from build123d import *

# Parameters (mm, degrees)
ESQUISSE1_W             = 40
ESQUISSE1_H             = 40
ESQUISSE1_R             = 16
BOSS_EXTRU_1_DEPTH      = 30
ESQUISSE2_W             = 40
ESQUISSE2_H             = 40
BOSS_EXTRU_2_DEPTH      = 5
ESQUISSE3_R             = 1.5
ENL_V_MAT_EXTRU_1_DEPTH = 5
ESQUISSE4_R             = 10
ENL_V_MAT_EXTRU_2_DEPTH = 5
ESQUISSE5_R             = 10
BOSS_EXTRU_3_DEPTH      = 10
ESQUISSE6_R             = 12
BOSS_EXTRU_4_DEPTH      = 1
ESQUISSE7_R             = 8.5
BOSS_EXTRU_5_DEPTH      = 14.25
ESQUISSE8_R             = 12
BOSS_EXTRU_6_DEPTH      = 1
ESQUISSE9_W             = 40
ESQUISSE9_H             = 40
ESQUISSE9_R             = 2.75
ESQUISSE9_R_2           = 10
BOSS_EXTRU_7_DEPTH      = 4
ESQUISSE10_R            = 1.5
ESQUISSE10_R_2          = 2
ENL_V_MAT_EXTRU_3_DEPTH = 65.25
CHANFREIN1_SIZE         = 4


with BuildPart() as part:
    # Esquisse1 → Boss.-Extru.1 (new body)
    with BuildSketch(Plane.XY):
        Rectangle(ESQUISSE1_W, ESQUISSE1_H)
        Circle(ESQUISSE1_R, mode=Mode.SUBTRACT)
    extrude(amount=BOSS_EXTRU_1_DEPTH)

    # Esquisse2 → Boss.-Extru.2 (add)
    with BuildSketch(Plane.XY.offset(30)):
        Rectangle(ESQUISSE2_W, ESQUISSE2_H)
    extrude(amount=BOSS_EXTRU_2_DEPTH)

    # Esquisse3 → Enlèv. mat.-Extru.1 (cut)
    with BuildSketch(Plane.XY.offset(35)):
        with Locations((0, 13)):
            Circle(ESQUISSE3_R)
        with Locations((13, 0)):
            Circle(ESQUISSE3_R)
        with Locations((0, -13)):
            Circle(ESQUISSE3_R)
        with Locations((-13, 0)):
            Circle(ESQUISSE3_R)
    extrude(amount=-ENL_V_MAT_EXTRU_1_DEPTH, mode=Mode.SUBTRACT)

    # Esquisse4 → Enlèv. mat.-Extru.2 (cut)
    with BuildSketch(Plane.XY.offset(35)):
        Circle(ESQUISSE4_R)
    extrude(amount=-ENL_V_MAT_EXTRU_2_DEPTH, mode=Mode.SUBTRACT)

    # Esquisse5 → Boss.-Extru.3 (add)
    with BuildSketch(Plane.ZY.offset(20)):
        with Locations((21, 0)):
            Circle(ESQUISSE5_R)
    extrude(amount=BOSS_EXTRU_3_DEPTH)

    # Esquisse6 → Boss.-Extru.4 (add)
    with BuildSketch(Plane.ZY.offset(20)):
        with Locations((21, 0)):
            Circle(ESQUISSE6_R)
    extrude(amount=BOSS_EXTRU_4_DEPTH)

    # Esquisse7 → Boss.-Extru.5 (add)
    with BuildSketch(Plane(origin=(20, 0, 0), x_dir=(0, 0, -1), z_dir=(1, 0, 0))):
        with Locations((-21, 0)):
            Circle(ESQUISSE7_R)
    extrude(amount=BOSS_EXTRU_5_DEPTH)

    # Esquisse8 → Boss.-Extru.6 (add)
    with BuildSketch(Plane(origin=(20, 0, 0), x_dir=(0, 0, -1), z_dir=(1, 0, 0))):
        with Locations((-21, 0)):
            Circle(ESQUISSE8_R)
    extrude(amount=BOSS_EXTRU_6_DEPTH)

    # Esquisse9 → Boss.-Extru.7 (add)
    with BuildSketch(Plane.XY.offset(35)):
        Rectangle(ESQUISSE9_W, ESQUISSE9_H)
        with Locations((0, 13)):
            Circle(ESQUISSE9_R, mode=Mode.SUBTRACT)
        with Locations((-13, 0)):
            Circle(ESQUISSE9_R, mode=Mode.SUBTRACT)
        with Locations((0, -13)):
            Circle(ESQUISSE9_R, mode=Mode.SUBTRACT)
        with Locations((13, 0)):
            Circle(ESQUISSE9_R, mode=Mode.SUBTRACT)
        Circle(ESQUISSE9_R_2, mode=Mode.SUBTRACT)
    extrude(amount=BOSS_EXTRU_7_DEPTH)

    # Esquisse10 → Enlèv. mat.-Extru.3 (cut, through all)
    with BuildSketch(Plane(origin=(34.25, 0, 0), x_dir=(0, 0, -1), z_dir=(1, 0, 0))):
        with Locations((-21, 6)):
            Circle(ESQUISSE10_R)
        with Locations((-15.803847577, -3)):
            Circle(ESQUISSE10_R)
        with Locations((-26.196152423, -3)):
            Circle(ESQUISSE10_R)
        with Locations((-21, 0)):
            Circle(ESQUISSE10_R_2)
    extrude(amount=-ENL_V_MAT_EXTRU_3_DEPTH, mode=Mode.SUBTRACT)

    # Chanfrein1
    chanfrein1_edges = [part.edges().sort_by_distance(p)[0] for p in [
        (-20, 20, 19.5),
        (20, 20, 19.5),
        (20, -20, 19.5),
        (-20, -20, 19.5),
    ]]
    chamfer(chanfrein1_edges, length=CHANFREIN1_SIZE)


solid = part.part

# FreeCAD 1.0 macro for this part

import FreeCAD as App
import Part
import Sketcher


def edges_at(feature, points):
    """Names of the edges that pass closest to the given points."""
    edges = feature.Shape.Edges
    near = lambda p: min(range(len(edges)), key=lambda i: edges[i].distToShape(Part.Vertex(*p))[0])
    return sorted({f"Edge{near(p) + 1}" for p in points})


def add_polygon(sketch, points):
    """Adds a closed chain of lines whose ends are joined by coincident constraints."""
    first, n = sketch.GeometryCount, len(points)
    for a, b in zip(points, points[1:] + points[:1]):
        sketch.addGeometry(Part.LineSegment(App.Vector(*a, 0), App.Vector(*b, 0)), False)
    for i in range(n):
        sketch.addConstraint(Sketcher.Constraint("Coincident", first + i, 2, first + (i + 1) % n, 1))

doc = App.newDocument("Part")
body = doc.addObject("PartDesign::Body", "Body")

# Sketch on XY plane
sketch1 = body.newObject("Sketcher::SketchObject", "Sketch")
sketch1.AttachmentSupport = (doc.getObject("XY_Plane"), [""])
sketch1.MapMode = "FlatFace"
add_polygon(sketch1, [(-20, 20), (-20, -20), (20, -20), (20, 20)])  # lines 0-3
sketch1.addGeometry(Part.Circle(App.Vector(0, 0, 0), App.Vector(0, 0, 1), 16), False)  # 4
sketch1.addConstraint([
    Sketcher.Constraint("Vertical", 0),
    Sketcher.Constraint("Horizontal", 1),
    Sketcher.Constraint("Vertical", 2),
    Sketcher.Constraint("Horizontal", 3),
    Sketcher.Constraint("Coincident", 4, 3, -1, 1),
    Sketcher.Constraint("Symmetric", 0, 2, 2, 2, -1, 1),
    Sketcher.Constraint("Equal", 3, 0),
    Sketcher.Constraint("Diameter", 4, 32.0),
    Sketcher.Constraint("DistanceX", 1, 1, 1, 2, 40.0),
])
pad1 = body.newObject("PartDesign::Pad", "Pad")
pad1.Profile = sketch1
pad1.Length = 30

# Sketch on XY plane
sketch2 = body.newObject("Sketcher::SketchObject", "Sketch001")
sketch2.AttachmentSupport = (doc.getObject("XY_Plane"), [""])
sketch2.MapMode = "FlatFace"
sketch2.AttachmentOffset = App.Placement(App.Vector(0, 0, 30), App.Rotation())
add_polygon(sketch2, [(-20, 20), (-20, -20), (20, -20), (20, 20)])  # lines 0-3
sketch2.addConstraint([
    Sketcher.Constraint("Vertical", 0),
    Sketcher.Constraint("Horizontal", 1),
    Sketcher.Constraint("Vertical", 2),
    Sketcher.Constraint("Horizontal", 3),
    Sketcher.Constraint("Symmetric", 0, 2, 2, 2, -1, 1),
    Sketcher.Constraint("Equal", 3, 0),
    Sketcher.Constraint("DistanceX", 1, 1, 1, 2, 40.0),
])
pad2 = body.newObject("PartDesign::Pad", "Pad001")
pad2.Profile = sketch2
pad2.Length = 5

# Sketch on XY plane
sketch3 = body.newObject("Sketcher::SketchObject", "Sketch002")
sketch3.AttachmentSupport = (doc.getObject("XY_Plane"), [""])
sketch3.MapMode = "FlatFace"
sketch3.AttachmentOffset = App.Placement(App.Vector(0, 0, 35), App.Rotation())
sketch3.addGeometry([
    Part.Circle(App.Vector(0, 13, 0), App.Vector(0, 0, 1), 1.5),
    Part.Circle(App.Vector(13, 0, 0), App.Vector(0, 0, 1), 1.5),
    Part.Circle(App.Vector(0, -13, 0), App.Vector(0, 0, 1), 1.5),
    Part.Circle(App.Vector(-13, 0, 0), App.Vector(0, 0, 1), 1.5),
], False)
sketch3.addConstraint([
    Sketcher.Constraint("Equal", 0, 1),
    Sketcher.Constraint("Equal", 1, 2),
    Sketcher.Constraint("Equal", 2, 3),
    Sketcher.Constraint("Symmetric", 0, 3, 2, 3, -1, 1),
    Sketcher.Constraint("Symmetric", 1, 3, 3, 3, -1, 1),
    Sketcher.Constraint("PointOnObject", 0, 3, -2),
    Sketcher.Constraint("PointOnObject", 1, 3, -1),
    Sketcher.Constraint("Diameter", 0, 3.0),
    Sketcher.Constraint("DistanceY", -1, 1, 0, 3, 13.0),
    Sketcher.Constraint("DistanceX", -1, 1, 1, 3, 13.0),
])
pocket1 = body.newObject("PartDesign::Pocket", "Pocket")
pocket1.Profile = sketch3
pocket1.Length = 5

# Sketch on XY plane
sketch4 = body.newObject("Sketcher::SketchObject", "Sketch003")
sketch4.AttachmentSupport = (doc.getObject("XY_Plane"), [""])
sketch4.MapMode = "FlatFace"
sketch4.AttachmentOffset = App.Placement(App.Vector(0, 0, 35), App.Rotation())
sketch4.addGeometry(Part.Circle(App.Vector(0, 0, 0), App.Vector(0, 0, 1), 10), False)
sketch4.addConstraint([
    Sketcher.Constraint("Coincident", 0, 3, -1, 1),
    Sketcher.Constraint("Diameter", 0, 20.0),
])
pocket2 = body.newObject("PartDesign::Pocket", "Pocket001")
pocket2.Profile = sketch4
pocket2.Length = 5

# Sketch on YZ plane
sketch5 = body.newObject("Sketcher::SketchObject", "Sketch004")
sketch5.AttachmentSupport = (doc.getObject("YZ_Plane"), [""])
sketch5.MapMode = "FlatFace"
sketch5.AttachmentOffset = App.Placement(App.Vector(0, 0, -20), App.Rotation())
sketch5.addGeometry(Part.Circle(App.Vector(0, 21, 0), App.Vector(0, 0, 1), 10), False)
sketch5.addConstraint([
    Sketcher.Constraint("PointOnObject", 0, 3, -2),
    Sketcher.Constraint("Diameter", 0, 20.0),
    Sketcher.Constraint("DistanceY", -1, 1, 0, 3, 21.0),
])
pad3 = body.newObject("PartDesign::Pad", "Pad002")
pad3.Profile = sketch5
pad3.Length = 10
pad3.Reversed = True

# Sketch on YZ plane
sketch6 = body.newObject("Sketcher::SketchObject", "Sketch005")
sketch6.AttachmentSupport = (doc.getObject("YZ_Plane"), [""])
sketch6.MapMode = "FlatFace"
sketch6.AttachmentOffset = App.Placement(App.Vector(0, 0, -20), App.Rotation())
sketch6.addGeometry(Part.Circle(App.Vector(0, 21, 0), App.Vector(0, 0, 1), 12), False)
sketch6.addConstraint([
    Sketcher.Constraint("PointOnObject", 0, 3, -2),
    Sketcher.Constraint("Diameter", 0, 24.0),
    Sketcher.Constraint("DistanceY", -1, 1, 0, 3, 21.0),
])
pad4 = body.newObject("PartDesign::Pad", "Pad003")
pad4.Profile = sketch6
pad4.Length = 1
pad4.Reversed = True

# Sketch on YZ plane
sketch7 = body.newObject("Sketcher::SketchObject", "Sketch006")
sketch7.AttachmentSupport = (doc.getObject("YZ_Plane"), [""])
sketch7.MapMode = "FlatFace"
sketch7.AttachmentOffset = App.Placement(App.Vector(0, 0, 20), App.Rotation())
sketch7.addGeometry(Part.Circle(App.Vector(0, 21, 0), App.Vector(0, 0, 1), 8), False)
sketch7.addConstraint([
    Sketcher.Constraint("PointOnObject", 0, 3, -2),
    Sketcher.Constraint("Diameter", 0, 17.0),
    Sketcher.Constraint("DistanceY", -1, 1, 0, 3, 21.0),
])
pad5 = body.newObject("PartDesign::Pad", "Pad004")
pad5.Profile = sketch7
pad5.Length = 14.25

# Sketch on YZ plane
sketch8 = body.newObject("Sketcher::SketchObject", "Sketch007")
sketch8.AttachmentSupport = (doc.getObject("YZ_Plane"), [""])
sketch8.MapMode = "FlatFace"
sketch8.AttachmentOffset = App.Placement(App.Vector(0, 0, 20), App.Rotation())
sketch8.addGeometry(Part.Circle(App.Vector(0, 21, 0), App.Vector(0, 0, 1), 12), False)
sketch8.addConstraint([
    Sketcher.Constraint("PointOnObject", 0, 3, -2),
    Sketcher.Constraint("Diameter", 0, 24.0),
    Sketcher.Constraint("DistanceY", -1, 1, 0, 3, 21.0),
])
pad6 = body.newObject("PartDesign::Pad", "Pad005")
pad6.Profile = sketch8
pad6.Length = 1

# Sketch on XY plane
sketch9 = body.newObject("Sketcher::SketchObject", "Sketch008")
sketch9.AttachmentSupport = (doc.getObject("XY_Plane"), [""])
sketch9.MapMode = "FlatFace"
sketch9.AttachmentOffset = App.Placement(App.Vector(0, 0, 35), App.Rotation())
add_polygon(sketch9, [(-20, 20), (-20, -20), (20, -20), (20, 20)])  # lines 0-3
sketch9.addGeometry(Part.Circle(App.Vector(0, -13, 0), App.Vector(0, 0, 1), 2.8), False)  # 4
sketch9.addGeometry(Part.Circle(App.Vector(-13, 0, 0), App.Vector(0, 0, 1), 2.8), False)  # 5
sketch9.addGeometry(Part.Circle(App.Vector(0, 0, 0), App.Vector(0, 0, 1), 10), False)  # 6
sketch9.addGeometry(Part.Circle(App.Vector(13, 0, 0), App.Vector(0, 0, 1), 2.8), False)  # 7
sketch9.addGeometry(Part.Circle(App.Vector(0, 13, 0), App.Vector(0, 0, 1), 2.8), False)  # 8
sketch9.addConstraint([
    Sketcher.Constraint("Vertical", 0),
    Sketcher.Constraint("Horizontal", 1),
    Sketcher.Constraint("Vertical", 2),
    Sketcher.Constraint("Horizontal", 3),
    Sketcher.Constraint("Coincident", 6, 3, -1, 1),
    Sketcher.Constraint("Equal", 4, 5),
    Sketcher.Constraint("Equal", 5, 7),
    Sketcher.Constraint("Equal", 7, 8),
    Sketcher.Constraint("Symmetric", 5, 3, 7, 3, -1, 1),
    Sketcher.Constraint("Symmetric", 4, 3, 8, 3, -1, 1),
    Sketcher.Constraint("Symmetric", 0, 2, 2, 2, -1, 1),
    Sketcher.Constraint("PointOnObject", 4, 3, -2),
    Sketcher.Constraint("PointOnObject", 5, 3, -1),
    Sketcher.Constraint("Equal", 3, 0),
    Sketcher.Constraint("Diameter", 6, 20.0),
    Sketcher.Constraint("Diameter", 4, 5.5),
    Sketcher.Constraint("DistanceX", 1, 1, 1, 2, 40.0),
    Sketcher.Constraint("DistanceY", 4, 3, -1, 1, 13.0),
    Sketcher.Constraint("DistanceX", 5, 3, -1, 1, 13.0),
])
pad7 = body.newObject("PartDesign::Pad", "Pad006")
pad7.Profile = sketch9
pad7.Length = 4

# Sketch on YZ plane
sketch10 = body.newObject("Sketcher::SketchObject", "Sketch009")
sketch10.AttachmentSupport = (doc.getObject("YZ_Plane"), [""])
sketch10.MapMode = "FlatFace"
sketch10.AttachmentOffset = App.Placement(App.Vector(0, 0, 34.25), App.Rotation())
sketch10.addGeometry([
    Part.Circle(App.Vector(6, 21, 0), App.Vector(0, 0, 1), 1.5),
    Part.Circle(App.Vector(-3, 15.8, 0), App.Vector(0, 0, 1), 1.5),
    Part.Circle(App.Vector(-3, 26.2, 0), App.Vector(0, 0, 1), 1.5),
    Part.Circle(App.Vector(0, 21, 0), App.Vector(0, 0, 1), 2),
], False)
sketch10.addConstraint([
    Sketcher.Constraint("Equal", 0, 1),
    Sketcher.Constraint("Equal", 1, 2),
    Sketcher.Constraint("PointOnObject", 3, 3, -2),
    Sketcher.Constraint("Horizontal", 0, 3, 3, 3),
    Sketcher.Constraint("Vertical", 1, 3, 2, 3),
    Sketcher.Constraint("Diameter", 0, 3.0),
    Sketcher.Constraint("Diameter", 3, 4.0),
    Sketcher.Constraint("DistanceX", -1, 1, 0, 3, 6.0),
    Sketcher.Constraint("DistanceY", -1, 1, 0, 3, 21.0),
    Sketcher.Constraint("DistanceX", 1, 3, -1, 1, 3.0),
    Sketcher.Constraint("DistanceY", -1, 1, 1, 3, 15.803848),
    Sketcher.Constraint("DistanceY", -1, 1, 2, 3, 26.196152),
])
pocket3 = body.newObject("PartDesign::Pocket", "Pocket002")
pocket3.Profile = sketch10
pocket3.Type = "ThroughAll"
doc.recompute()

chamfer = body.newObject("PartDesign::Chamfer", "Chamfer")
chamfer.Base = (pocket3, edges_at(pocket3, [
    (-20, 20, 19.5),
    (20, 20, 19.5),
    (20, -20, 19.5),
    (-20, -20, 19.5),
]))
chamfer.Size = 4

doc.recompute()
